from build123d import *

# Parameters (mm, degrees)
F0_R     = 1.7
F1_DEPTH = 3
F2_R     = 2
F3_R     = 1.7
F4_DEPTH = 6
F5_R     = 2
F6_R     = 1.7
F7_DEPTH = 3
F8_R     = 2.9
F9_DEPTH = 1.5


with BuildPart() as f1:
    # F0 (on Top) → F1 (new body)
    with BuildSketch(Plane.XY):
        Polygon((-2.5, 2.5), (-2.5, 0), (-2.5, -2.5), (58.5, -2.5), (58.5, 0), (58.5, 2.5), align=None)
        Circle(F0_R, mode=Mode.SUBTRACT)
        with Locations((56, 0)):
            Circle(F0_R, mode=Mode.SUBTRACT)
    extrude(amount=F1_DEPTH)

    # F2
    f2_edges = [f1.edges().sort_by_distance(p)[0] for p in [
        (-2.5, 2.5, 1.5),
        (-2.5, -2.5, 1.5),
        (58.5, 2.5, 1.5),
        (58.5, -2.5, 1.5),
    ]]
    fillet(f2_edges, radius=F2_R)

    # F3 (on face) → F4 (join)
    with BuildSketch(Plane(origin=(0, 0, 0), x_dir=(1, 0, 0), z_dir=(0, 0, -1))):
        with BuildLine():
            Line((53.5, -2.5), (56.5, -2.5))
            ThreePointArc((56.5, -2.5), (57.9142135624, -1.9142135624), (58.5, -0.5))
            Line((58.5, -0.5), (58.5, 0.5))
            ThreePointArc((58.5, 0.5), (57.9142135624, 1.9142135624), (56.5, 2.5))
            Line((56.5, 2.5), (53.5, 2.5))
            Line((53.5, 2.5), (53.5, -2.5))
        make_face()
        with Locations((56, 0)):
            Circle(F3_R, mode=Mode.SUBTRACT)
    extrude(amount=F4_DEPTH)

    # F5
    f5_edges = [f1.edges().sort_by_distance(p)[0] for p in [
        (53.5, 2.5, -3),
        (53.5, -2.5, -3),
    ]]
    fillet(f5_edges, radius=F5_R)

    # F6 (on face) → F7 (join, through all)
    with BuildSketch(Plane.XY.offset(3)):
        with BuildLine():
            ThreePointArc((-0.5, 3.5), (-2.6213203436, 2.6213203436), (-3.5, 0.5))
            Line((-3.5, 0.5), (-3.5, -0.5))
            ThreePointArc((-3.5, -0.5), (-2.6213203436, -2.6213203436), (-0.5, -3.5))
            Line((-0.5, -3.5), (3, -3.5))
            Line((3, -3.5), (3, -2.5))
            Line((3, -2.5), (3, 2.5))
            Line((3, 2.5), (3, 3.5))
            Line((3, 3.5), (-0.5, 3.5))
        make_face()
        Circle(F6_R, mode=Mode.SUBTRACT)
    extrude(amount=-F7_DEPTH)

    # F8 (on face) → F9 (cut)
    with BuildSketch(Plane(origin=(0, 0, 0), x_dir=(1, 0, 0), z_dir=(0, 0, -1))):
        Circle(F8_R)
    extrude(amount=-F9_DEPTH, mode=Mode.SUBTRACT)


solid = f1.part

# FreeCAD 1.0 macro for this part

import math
import FreeCAD as App
import Part
import Sketcher

V = App.Vector
Q = App.Units.Quantity


def edges_at(feature, points):
    """Names of the edges that pass closest to the given points."""
    edges = feature.Shape.Edges
    near = lambda p: min(range(len(edges)), key=lambda i: edges[i].distToShape(Part.Vertex(*p))[0])
    return sorted({f"Edge{near(p) + 1}" for p in points})

doc = App.newDocument("Part")
body = doc.addObject("PartDesign::Body", "Body")

# Sketch on XY plane
sketch1 = body.newObject("Sketcher::SketchObject", "Sketch")
sketch1.AttachmentSupport = (doc.getObject("XY_Plane"), [""])
sketch1.MapMode = "FlatFace"
sketch1.addGeometry([
    Part.LineSegment(V(-2.5, 2.5, 0), V(-2.5, -2.5, 0)),  # 0
    Part.LineSegment(V(-2.5, -2.5, 0), V(58.5, -2.5, 0)),  # 1
    Part.LineSegment(V(58.5, -2.5, 0), V(58.5, 2.5, 0)),  # 2
    Part.LineSegment(V(58.5, 2.5, 0), V(-2.5, 2.5, 0)),  # 3
    Part.Circle(V(0, 0, 0), V(0, 0, 1), 1.7),  # 4
    Part.Circle(V(56, 0, 0), V(0, 0, 1), 1.7),  # 5
], False)
sketch1.addConstraint([
    Sketcher.Constraint("Coincident", 0, 2, 1, 1),
    Sketcher.Constraint("Coincident", 1, 2, 2, 1),
    Sketcher.Constraint("Coincident", 2, 2, 3, 1),
    Sketcher.Constraint("Coincident", 3, 2, 0, 1),
    Sketcher.Constraint("Vertical", 0),
    Sketcher.Constraint("Horizontal", 1),
    Sketcher.Constraint("Vertical", 2),
    Sketcher.Constraint("Horizontal", 3),
    Sketcher.Constraint("Coincident", 4, 3, -1, 1),
    Sketcher.Constraint("Equal", 4, 5),
    Sketcher.Constraint("PointOnObject", 5, 3, -1),
    Sketcher.Constraint("Diameter", 4, Q("3.4 mm")),
    Sketcher.Constraint("DistanceX", 1, 1, 1, 2, Q("61 mm")),
    Sketcher.Constraint("DistanceY", 0, 2, 0, 1, Q("5 mm")),
    Sketcher.Constraint("DistanceX", -1, 1, 5, 3, Q("56 mm")),
    Sketcher.Constraint("DistanceX", 0, 2, -1, 1, Q("2.5 mm")),
    Sketcher.Constraint("DistanceY", 0, 2, -1, 1, Q("2.5 mm")),
])
pad1 = body.newObject("PartDesign::Pad", "Pad")
pad1.Profile = sketch1
pad1.Length = 3
doc.recompute()

fillet = body.newObject("PartDesign::Fillet", "Fillet")
fillet.Base = (pad1, edges_at(pad1, [
    (-2.5, 2.5, 1.5),
    (-2.5, -2.5, 1.5),
    (58.5, 2.5, 1.5),
    (58.5, -2.5, 1.5),
]))
fillet.Radius = 2

# Sketch on XY plane
sketch2 = body.newObject("Sketcher::SketchObject", "Sketch001")
sketch2.AttachmentSupport = (doc.getObject("XY_Plane"), [""])
sketch2.MapMode = "FlatFace"
sketch2.addGeometry([
    Part.LineSegment(V(53.5, 2.5, 0), V(56.5, 2.5, 0)),  # 0
    Part.ArcOfCircle(Part.Circle(V(56.5, 0.5, 0), V(0, 0, 1), 2), math.radians(0), math.radians(90)),  # 1
    Part.LineSegment(V(58.5, 0.5, 0), V(58.5, -0.5, 0)),  # 2
    Part.ArcOfCircle(Part.Circle(V(56.5, -0.5, 0), V(0, 0, 1), 2), math.radians(-90), math.radians(0)),  # 3
    Part.LineSegment(V(56.5, -2.5, 0), V(53.5, -2.5, 0)),  # 4
    Part.LineSegment(V(53.5, -2.5, 0), V(53.5, 2.5, 0)),  # 5
    Part.Circle(V(56, 0, 0), V(0, 0, 1), 1.7),  # 6
], False)
sketch2.addConstraint([
    Sketcher.Constraint("Tangent", 0, 2, 1, 2),
    Sketcher.Constraint("Tangent", 1, 1, 2, 1),
    Sketcher.Constraint("Tangent", 2, 2, 3, 2),
    Sketcher.Constraint("Tangent", 3, 1, 4, 1),
    Sketcher.Constraint("Coincident", 4, 2, 5, 1),
    Sketcher.Constraint("Coincident", 5, 2, 0, 1),
    Sketcher.Constraint("Horizontal", 0),
    Sketcher.Constraint("Vertical", 2),
    Sketcher.Constraint("Horizontal", 4),
    Sketcher.Constraint("Vertical", 5),
    Sketcher.Constraint("Equal", 1, 3),
    Sketcher.Constraint("PointOnObject", 6, 3, -1),
    Sketcher.Constraint("Radius", 1, Q("2 mm")),
    Sketcher.Constraint("Diameter", 6, Q("3.4 mm")),
    Sketcher.Constraint("DistanceX", 0, 1, 0, 2, Q("3 mm")),
    Sketcher.Constraint("DistanceY", 2, 2, 2, 1, Q("1 mm")),
    Sketcher.Constraint("DistanceX", -1, 1, 6, 3, Q("56 mm")),
    Sketcher.Constraint("DistanceX", -1, 1, 1, 3, Q("56.5 mm")),
    Sketcher.Constraint("DistanceY", -1, 1, 1, 3, Q("0.5 mm")),
])
pad2 = body.newObject("PartDesign::Pad", "Pad001")
pad2.Profile = sketch2
pad2.Length = 6
pad2.Reversed = True
doc.recompute()

fillet2 = body.newObject("PartDesign::Fillet", "Fillet001")
fillet2.Base = (pad2, edges_at(pad2, [(53.5, 2.5, -3), (53.5, -2.5, -3)]))
fillet2.Radius = 2

# Sketch on XY plane
sketch3 = body.newObject("Sketcher::SketchObject", "Sketch002")
sketch3.AttachmentSupport = (doc.getObject("XY_Plane"), [""])
sketch3.MapMode = "FlatFace"
sketch3.AttachmentOffset = App.Placement(V(0, 0, 3), App.Rotation())
sketch3.addGeometry([
    Part.ArcOfCircle(Part.Circle(V(-0.5, 0.5, 0), V(0, 0, 1), 3), math.radians(90), math.radians(180)),  # 0
    Part.LineSegment(V(-3.5, 0.5, 0), V(-3.5, -0.5, 0)),  # 1
    Part.ArcOfCircle(Part.Circle(V(-0.5, -0.5, 0), V(0, 0, 1), 3), math.radians(180), math.radians(270)),  # 2
    Part.LineSegment(V(-0.5, -3.5, 0), V(3, -3.5, 0)),  # 3
    Part.LineSegment(V(3, -3.5, 0), V(3, 3.5, 0)),  # 4
    Part.LineSegment(V(3, 3.5, 0), V(-0.5, 3.5, 0)),  # 5
    Part.Circle(V(0, 0, 0), V(0, 0, 1), 1.7),  # 6
], False)
sketch3.addConstraint([
    Sketcher.Constraint("Tangent", 0, 2, 1, 1),
    Sketcher.Constraint("Tangent", 1, 2, 2, 1),
    Sketcher.Constraint("Tangent", 2, 2, 3, 1),
    Sketcher.Constraint("Coincident", 3, 2, 4, 1),
    Sketcher.Constraint("Coincident", 4, 2, 5, 1),
    Sketcher.Constraint("Tangent", 5, 2, 0, 1),
    Sketcher.Constraint("Vertical", 1),
    Sketcher.Constraint("Horizontal", 3),
    Sketcher.Constraint("Vertical", 4),
    Sketcher.Constraint("Horizontal", 5),
    Sketcher.Constraint("Coincident", 6, 3, -1, 1),
    Sketcher.Constraint("Equal", 0, 2),
    Sketcher.Constraint("Radius", 0, Q("3 mm")),
    Sketcher.Constraint("Diameter", 6, Q("3.4 mm")),
    Sketcher.Constraint("DistanceY", 1, 2, 1, 1, Q("1 mm")),
    Sketcher.Constraint("DistanceX", 3, 1, 3, 2, Q("3.5 mm")),
    Sketcher.Constraint("DistanceX", -1, 1, 3, 2, Q("3 mm")),
    Sketcher.Constraint("DistanceY", -1, 1, 0, 3, Q("0.5 mm")),
])
pad3 = body.newObject("PartDesign::Pad", "Pad002")
pad3.Profile = sketch3
pad3.Length = 3
pad3.Reversed = True

# Sketch on XY plane
sketch4 = body.newObject("Sketcher::SketchObject", "Sketch003")
sketch4.AttachmentSupport = (doc.getObject("XY_Plane"), [""])
sketch4.MapMode = "FlatFace"
sketch4.addGeometry(Part.Circle(V(0, 0, 0), V(0, 0, 1), 2.9), False)
sketch4.addConstraint([
    Sketcher.Constraint("Coincident", 0, 3, -1, 1),
    Sketcher.Constraint("Diameter", 0, Q("5.8 mm")),
])
pocket1 = body.newObject("PartDesign::Pocket", "Pocket")
pocket1.Profile = sketch4
pocket1.Length = 1.5
pocket1.Reversed = True

doc.recompute()
